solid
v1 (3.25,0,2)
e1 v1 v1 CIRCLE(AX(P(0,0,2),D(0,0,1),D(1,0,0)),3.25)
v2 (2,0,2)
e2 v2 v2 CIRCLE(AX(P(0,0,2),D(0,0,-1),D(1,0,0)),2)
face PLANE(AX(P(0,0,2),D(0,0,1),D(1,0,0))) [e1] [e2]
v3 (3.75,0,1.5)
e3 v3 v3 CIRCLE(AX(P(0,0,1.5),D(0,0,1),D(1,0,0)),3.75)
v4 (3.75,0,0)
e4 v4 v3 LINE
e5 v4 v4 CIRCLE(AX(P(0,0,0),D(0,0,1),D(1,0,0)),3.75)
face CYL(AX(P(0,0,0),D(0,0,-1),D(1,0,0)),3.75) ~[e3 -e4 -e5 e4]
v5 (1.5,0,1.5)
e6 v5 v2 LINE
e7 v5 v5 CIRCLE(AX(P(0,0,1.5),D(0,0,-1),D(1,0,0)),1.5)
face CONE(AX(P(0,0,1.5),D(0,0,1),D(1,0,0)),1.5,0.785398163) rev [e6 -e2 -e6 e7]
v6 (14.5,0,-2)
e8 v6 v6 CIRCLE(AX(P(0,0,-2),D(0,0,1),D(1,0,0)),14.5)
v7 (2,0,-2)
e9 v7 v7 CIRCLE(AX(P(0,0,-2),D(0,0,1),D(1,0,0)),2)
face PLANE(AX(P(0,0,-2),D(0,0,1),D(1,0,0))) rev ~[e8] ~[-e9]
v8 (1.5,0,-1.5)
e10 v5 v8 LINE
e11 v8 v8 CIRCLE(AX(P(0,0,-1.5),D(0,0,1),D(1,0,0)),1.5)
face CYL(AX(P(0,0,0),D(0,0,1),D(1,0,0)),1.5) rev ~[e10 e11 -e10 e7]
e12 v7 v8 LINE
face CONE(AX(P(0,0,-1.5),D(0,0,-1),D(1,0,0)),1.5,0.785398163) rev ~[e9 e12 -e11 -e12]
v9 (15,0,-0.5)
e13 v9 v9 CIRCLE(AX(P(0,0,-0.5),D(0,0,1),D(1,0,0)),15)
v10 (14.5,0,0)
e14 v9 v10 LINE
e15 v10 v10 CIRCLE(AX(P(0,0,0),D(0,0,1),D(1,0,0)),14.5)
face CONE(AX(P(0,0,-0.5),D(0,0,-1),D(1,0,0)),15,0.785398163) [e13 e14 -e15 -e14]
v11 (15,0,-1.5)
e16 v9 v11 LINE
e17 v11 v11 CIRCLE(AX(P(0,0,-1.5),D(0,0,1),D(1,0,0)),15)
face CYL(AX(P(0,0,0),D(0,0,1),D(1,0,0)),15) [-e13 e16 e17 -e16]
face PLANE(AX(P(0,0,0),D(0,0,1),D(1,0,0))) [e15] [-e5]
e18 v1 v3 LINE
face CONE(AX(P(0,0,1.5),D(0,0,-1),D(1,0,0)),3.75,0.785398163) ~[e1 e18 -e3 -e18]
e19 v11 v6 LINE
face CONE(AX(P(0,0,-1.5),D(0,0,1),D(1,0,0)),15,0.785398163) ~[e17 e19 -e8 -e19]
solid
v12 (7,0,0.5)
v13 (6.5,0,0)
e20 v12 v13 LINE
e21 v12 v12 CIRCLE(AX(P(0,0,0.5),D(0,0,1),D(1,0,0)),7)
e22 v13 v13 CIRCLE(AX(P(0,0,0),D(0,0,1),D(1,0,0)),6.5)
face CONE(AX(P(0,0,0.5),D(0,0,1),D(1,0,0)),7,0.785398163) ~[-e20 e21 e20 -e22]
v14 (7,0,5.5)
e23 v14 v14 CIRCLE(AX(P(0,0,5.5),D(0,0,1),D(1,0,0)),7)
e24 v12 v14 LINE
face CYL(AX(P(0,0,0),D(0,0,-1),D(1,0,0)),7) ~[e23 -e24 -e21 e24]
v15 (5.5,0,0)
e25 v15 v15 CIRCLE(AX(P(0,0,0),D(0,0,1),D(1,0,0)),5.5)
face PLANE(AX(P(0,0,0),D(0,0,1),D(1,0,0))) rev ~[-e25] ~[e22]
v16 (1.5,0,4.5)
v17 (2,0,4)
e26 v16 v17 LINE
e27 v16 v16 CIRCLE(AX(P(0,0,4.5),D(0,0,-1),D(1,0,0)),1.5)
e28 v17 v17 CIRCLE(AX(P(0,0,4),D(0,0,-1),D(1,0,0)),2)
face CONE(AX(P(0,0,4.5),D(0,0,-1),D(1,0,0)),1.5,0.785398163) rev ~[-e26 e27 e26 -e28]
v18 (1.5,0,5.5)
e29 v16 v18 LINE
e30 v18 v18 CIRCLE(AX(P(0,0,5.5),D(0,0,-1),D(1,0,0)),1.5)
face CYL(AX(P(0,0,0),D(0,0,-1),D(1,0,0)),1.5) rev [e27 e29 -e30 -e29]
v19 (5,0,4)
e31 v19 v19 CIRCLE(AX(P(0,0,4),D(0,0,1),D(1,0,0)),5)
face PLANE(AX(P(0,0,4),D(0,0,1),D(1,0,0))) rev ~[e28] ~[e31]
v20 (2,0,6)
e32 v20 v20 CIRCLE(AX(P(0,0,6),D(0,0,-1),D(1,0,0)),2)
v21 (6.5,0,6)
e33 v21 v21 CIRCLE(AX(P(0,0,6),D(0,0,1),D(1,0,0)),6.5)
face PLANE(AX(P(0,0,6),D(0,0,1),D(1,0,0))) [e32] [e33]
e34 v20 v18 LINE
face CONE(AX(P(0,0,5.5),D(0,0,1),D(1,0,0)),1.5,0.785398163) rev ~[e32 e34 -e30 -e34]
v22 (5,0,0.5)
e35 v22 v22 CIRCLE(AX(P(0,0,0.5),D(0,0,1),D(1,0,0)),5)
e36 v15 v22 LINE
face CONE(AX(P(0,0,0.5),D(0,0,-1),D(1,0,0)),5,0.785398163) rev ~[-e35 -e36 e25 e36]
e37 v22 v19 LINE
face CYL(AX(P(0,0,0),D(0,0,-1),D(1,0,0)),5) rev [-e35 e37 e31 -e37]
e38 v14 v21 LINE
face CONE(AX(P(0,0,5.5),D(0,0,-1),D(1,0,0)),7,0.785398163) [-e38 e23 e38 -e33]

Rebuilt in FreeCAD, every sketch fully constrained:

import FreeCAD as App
import Part
import Sketcher
from FreeCAD import Vector


def edges_at(feature, points):
    """Names of the edges that pass closest to the given points."""
    edges = feature.Shape.Edges
    near = lambda p: min(range(len(edges)), key=lambda i: edges[i].distToShape(Part.Vertex(*p))[0])
    return sorted({f"Edge{near(p) + 1}" for p in points})

doc = App.newDocument("Part")
params = doc.addObject("Spreadsheet::Sheet", "Params")
for row, (alias, value) in enumerate([
    ("sketch1_diameter", "30 mm"),
    ("pad1_length", "2 mm"),
    ("sketch2_diameter", "7.5 mm"),
    ("pad2_length", "2 mm"),
    ("sketch3_diameter", "3 mm"),
    ("chamfer_size", "0.5 mm"),
    ("sketch4_diameter", "14 mm"),
    ("pad3_length", "6 mm"),
    ("sketch5_diameter", "10 mm"),
    ("pocket2_length", "4 mm"),
    ("sketch6_diameter", "3 mm"),
    ("chamfer2_size", "0.5 mm"),
], start=1):
    params.set(f"A{row}", alias)
    params.set(f"B{row}", "=" + value)
    params.setAlias(f"B{row}", alias)

body = doc.addObject("PartDesign::Body", "Body")

# Sketch on XY plane
sketch1 = body.newObject("Sketcher::SketchObject", "Sketch")
sketch1.AttachmentSupport = (doc.getObject("XY_Plane"), [""])
sketch1.MapMode = "FlatFace"
sketch1.addGeometry(Part.Circle(Vector(0, 0, 0), Vector(0, 0, 1), 15), False)
sketch1.addConstraint([
    Sketcher.Constraint("Coincident", 0, 3, -1, 1),
    Sketcher.Constraint("Diameter", 0, 30.0),
])
sketch1.setExpression("Constraints[1]", "Params.sketch1_diameter")
pad1 = body.newObject("PartDesign::Pad", "Pad")
pad1.Profile = sketch1
pad1.setExpression("Length", "Params.pad1_length")
pad1.Reversed = True

# Sketch on XY plane
sketch2 = body.newObject("Sketcher::SketchObject", "Sketch001")
sketch2.AttachmentSupport = (doc.getObject("XY_Plane"), [""])
sketch2.MapMode = "FlatFace"
sketch2.addGeometry(Part.Circle(Vector(0, 0, 0), Vector(0, 0, 1), 3.8), False)
sketch2.addConstraint([
    Sketcher.Constraint("Coincident", 0, 3, -1, 1),
    Sketcher.Constraint("Diameter", 0, 7.5),
])
sketch2.setExpression("Constraints[1]", "Params.sketch2_diameter")
pad2 = body.newObject("PartDesign::Pad", "Pad001")
pad2.Profile = sketch2
pad2.setExpression("Length", "Params.pad2_length")

# Sketch on XY plane
sketch3 = body.newObject("Sketcher::SketchObject", "Sketch002")
sketch3.AttachmentSupport = (doc.getObject("XY_Plane"), [""])
sketch3.MapMode = "FlatFace"
sketch3.addGeometry(Part.Circle(Vector(0, 0, 0), Vector(0, 0, 1), 1.5), False)
sketch3.addConstraint([
    Sketcher.Constraint("Coincident", 0, 3, -1, 1),
    Sketcher.Constraint("Diameter", 0, 3.0),
])
sketch3.setExpression("Constraints[1]", "Params.sketch3_diameter")
pocket1 = body.newObject("PartDesign::Pocket", "Pocket")
pocket1.Profile = sketch3
pocket1.Type = "ThroughAll"
pocket1.Midplane = True
doc.recompute()

chamfer = body.newObject("PartDesign::Chamfer", "Chamfer")
chamfer.Base = (pocket1, edges_at(pocket1, [
    (-3.75, 0, 2),
    (-15, 0, 0),
    (-15, 0, -2),
    (-1.5, 0, 2),
    (-1.5, 0, -2),
]))
chamfer.setExpression("Size", "Params.chamfer_size")
body2 = doc.addObject("PartDesign::Body", "Body001")

# Sketch on XY plane
sketch4 = body2.newObject("Sketcher::SketchObject", "Sketch003")
sketch4.AttachmentSupport = (doc.getObject("XY_Plane001"), [""])
sketch4.MapMode = "FlatFace"
sketch4.addGeometry(Part.Circle(Vector(0, 0, 0), Vector(0, 0, 1), 7), False)
sketch4.addConstraint([
    Sketcher.Constraint("Coincident", 0, 3, -1, 1),
    Sketcher.Constraint("Diameter", 0, 14.0),
])
sketch4.setExpression("Constraints[1]", "Params.sketch4_diameter")
pad3 = body2.newObject("PartDesign::Pad", "Pad002")
pad3.Profile = sketch4
pad3.setExpression("Length", "Params.pad3_length")

# Sketch on XY plane
sketch5 = body2.newObject("Sketcher::SketchObject", "Sketch004")
sketch5.AttachmentSupport = (doc.getObject("XY_Plane001"), [""])
sketch5.MapMode = "FlatFace"
sketch5.addGeometry(Part.Circle(Vector(0, 0, 0), Vector(0, 0, 1), 5), False)
sketch5.addConstraint([
    Sketcher.Constraint("Coincident", 0, 3, -1, 1),
    Sketcher.Constraint("Diameter", 0, 10.0),
])
sketch5.setExpression("Constraints[1]", "Params.sketch5_diameter")
pocket2 = body2.newObject("PartDesign::Pocket", "Pocket001")
pocket2.Profile = sketch5
pocket2.setExpression("Length", "Params.pocket2_length")
pocket2.Reversed = True

# Sketch on XY plane
sketch6 = body2.newObject("Sketcher::SketchObject", "Sketch005")
sketch6.AttachmentSupport = (doc.getObject("XY_Plane001"), [""])
sketch6.MapMode = "FlatFace"
sketch6.addGeometry(Part.Circle(Vector(0, 0, 0), Vector(0, 0, 1), 1.5), False)
sketch6.addConstraint([
    Sketcher.Constraint("Coincident", 0, 3, -1, 1),
    Sketcher.Constraint("Diameter", 0, 3.0),
])
sketch6.setExpression("Constraints[1]", "Params.sketch6_diameter")
pocket3 = body2.newObject("PartDesign::Pocket", "Pocket002")
pocket3.Profile = sketch6
pocket3.Type = "ThroughAll"
pocket3.Midplane = True
doc.recompute()

chamfer2 = body2.newObject("PartDesign::Chamfer", "Chamfer001")
chamfer2.Base = (pocket3, edges_at(pocket3, [
    (-7, 0, 0),
    (-5, 0, 0),
    (-7, 0, 6),
    (-1.5, 0, 6),
    (-1.5, 0, 4),
]))
chamfer2.setExpression("Size", "Params.chamfer2_size")

doc.recompute()
